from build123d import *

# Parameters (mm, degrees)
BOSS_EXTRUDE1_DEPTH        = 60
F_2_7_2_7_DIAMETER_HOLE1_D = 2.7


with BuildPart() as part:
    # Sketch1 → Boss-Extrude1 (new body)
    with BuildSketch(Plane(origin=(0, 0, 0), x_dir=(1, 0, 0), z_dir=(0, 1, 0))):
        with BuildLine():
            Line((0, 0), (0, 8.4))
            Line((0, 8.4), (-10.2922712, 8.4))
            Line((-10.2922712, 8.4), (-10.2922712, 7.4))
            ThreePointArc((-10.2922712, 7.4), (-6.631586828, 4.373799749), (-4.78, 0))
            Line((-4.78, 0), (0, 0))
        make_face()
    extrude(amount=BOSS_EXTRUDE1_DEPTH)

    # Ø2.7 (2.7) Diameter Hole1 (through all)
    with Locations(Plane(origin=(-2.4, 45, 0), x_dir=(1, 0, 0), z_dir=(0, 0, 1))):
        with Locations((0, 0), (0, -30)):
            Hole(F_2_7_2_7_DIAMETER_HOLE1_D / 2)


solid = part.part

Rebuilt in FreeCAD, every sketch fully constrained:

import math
import FreeCAD as App
import Part
import Sketcher

doc = App.newDocument("Part")
body = doc.addObject("PartDesign::Body", "Body")

sketch1 = body.newObject("Sketcher::SketchObject", "Sketch")
sketch1.AttachmentSupport = (doc.getObject("XZ_Plane"), [""])
sketch1.MapMode = "FlatFace"
sketch1.addGeometry([
    Part.LineSegment(App.Vector(0, 0, 0), App.Vector(0, -8.4, 0)),
    Part.LineSegment(App.Vector(0, -8.4, 0), App.Vector(-10.3, -8.4, 0)),
    Part.LineSegment(App.Vector(-10.3, -8.4, 0), App.Vector(-10.3, -7.4, 0)),
    Part.ArcOfCircle(Part.Circle(App.Vector(-14.7, 1.6, 0), App.Vector(0, 0, 1), 10), math.radians(-64), math.radians(-9)),
    Part.LineSegment(App.Vector(-4.8, 0, 0), App.Vector(0, 0, 0)),
], False)
sketch1.addConstraint([
    Sketcher.Constraint("Coincident", 0, 2, 1, 1),
    Sketcher.Constraint("Coincident", 1, 2, 2, 1),
    Sketcher.Constraint("Coincident", 2, 2, 3, 1),
    Sketcher.Constraint("Coincident", 3, 2, 4, 1),
    Sketcher.Constraint("Coincident", 4, 2, 0, 1),
    Sketcher.Constraint("Vertical", 0),
    Sketcher.Constraint("Horizontal", 1),
    Sketcher.Constraint("Vertical", 2),
    Sketcher.Constraint("Horizontal", 4),
    Sketcher.Constraint("Coincident", 4, 2, -1, 1),
    Sketcher.Constraint("Radius", 3, 10.0),
    Sketcher.Constraint("DistanceY", 2, 1, 2, 2, 1.0),
    Sketcher.Constraint("DistanceY", 0, 2, 0, 1, 8.4),
    Sketcher.Constraint("DistanceY", 0, 2, 3, 3, 10.0),
    Sketcher.Constraint("DistanceX", 4, 1, 4, 2, 4.78),
])
pad1 = body.newObject("PartDesign::Pad", "Pad")
pad1.Profile = sketch1
pad1.Length = 60
pad1.Reversed = True

sketch2 = body.newObject("Sketcher::SketchObject", "Sketch001")
sketch2.AttachmentSupport = (doc.getObject("XY_Plane"), [""])
sketch2.MapMode = "FlatFace"
sketch2.addGeometry([
    Part.Circle(App.Vector(-2.4, 45, 0), App.Vector(0, 0, 1), 1.4),
    Part.Circle(App.Vector(-2.4, 15, 0), App.Vector(0, 0, 1), 1.4),
], False)
sketch2.addConstraint([
    Sketcher.Constraint("Equal", 0, 1),
    Sketcher.Constraint("Vertical", 0, 3, 1, 3),
    Sketcher.Constraint("Diameter", 0, 2.7),
    Sketcher.Constraint("DistanceY", -1, 1, 0, 3, 45.0),
    Sketcher.Constraint("DistanceY", -1, 1, 1, 3, 15.0),
    Sketcher.Constraint("DistanceX", 0, 3, -1, 1, 2.4),
])
doc.recompute()
hole = body.newObject("PartDesign::Hole", "Hole")
hole.Profile = sketch2
hole.ThreadType = "None"
hole.Diameter = 2.7
hole.DepthType = "ThroughAll"

doc.recompute()
